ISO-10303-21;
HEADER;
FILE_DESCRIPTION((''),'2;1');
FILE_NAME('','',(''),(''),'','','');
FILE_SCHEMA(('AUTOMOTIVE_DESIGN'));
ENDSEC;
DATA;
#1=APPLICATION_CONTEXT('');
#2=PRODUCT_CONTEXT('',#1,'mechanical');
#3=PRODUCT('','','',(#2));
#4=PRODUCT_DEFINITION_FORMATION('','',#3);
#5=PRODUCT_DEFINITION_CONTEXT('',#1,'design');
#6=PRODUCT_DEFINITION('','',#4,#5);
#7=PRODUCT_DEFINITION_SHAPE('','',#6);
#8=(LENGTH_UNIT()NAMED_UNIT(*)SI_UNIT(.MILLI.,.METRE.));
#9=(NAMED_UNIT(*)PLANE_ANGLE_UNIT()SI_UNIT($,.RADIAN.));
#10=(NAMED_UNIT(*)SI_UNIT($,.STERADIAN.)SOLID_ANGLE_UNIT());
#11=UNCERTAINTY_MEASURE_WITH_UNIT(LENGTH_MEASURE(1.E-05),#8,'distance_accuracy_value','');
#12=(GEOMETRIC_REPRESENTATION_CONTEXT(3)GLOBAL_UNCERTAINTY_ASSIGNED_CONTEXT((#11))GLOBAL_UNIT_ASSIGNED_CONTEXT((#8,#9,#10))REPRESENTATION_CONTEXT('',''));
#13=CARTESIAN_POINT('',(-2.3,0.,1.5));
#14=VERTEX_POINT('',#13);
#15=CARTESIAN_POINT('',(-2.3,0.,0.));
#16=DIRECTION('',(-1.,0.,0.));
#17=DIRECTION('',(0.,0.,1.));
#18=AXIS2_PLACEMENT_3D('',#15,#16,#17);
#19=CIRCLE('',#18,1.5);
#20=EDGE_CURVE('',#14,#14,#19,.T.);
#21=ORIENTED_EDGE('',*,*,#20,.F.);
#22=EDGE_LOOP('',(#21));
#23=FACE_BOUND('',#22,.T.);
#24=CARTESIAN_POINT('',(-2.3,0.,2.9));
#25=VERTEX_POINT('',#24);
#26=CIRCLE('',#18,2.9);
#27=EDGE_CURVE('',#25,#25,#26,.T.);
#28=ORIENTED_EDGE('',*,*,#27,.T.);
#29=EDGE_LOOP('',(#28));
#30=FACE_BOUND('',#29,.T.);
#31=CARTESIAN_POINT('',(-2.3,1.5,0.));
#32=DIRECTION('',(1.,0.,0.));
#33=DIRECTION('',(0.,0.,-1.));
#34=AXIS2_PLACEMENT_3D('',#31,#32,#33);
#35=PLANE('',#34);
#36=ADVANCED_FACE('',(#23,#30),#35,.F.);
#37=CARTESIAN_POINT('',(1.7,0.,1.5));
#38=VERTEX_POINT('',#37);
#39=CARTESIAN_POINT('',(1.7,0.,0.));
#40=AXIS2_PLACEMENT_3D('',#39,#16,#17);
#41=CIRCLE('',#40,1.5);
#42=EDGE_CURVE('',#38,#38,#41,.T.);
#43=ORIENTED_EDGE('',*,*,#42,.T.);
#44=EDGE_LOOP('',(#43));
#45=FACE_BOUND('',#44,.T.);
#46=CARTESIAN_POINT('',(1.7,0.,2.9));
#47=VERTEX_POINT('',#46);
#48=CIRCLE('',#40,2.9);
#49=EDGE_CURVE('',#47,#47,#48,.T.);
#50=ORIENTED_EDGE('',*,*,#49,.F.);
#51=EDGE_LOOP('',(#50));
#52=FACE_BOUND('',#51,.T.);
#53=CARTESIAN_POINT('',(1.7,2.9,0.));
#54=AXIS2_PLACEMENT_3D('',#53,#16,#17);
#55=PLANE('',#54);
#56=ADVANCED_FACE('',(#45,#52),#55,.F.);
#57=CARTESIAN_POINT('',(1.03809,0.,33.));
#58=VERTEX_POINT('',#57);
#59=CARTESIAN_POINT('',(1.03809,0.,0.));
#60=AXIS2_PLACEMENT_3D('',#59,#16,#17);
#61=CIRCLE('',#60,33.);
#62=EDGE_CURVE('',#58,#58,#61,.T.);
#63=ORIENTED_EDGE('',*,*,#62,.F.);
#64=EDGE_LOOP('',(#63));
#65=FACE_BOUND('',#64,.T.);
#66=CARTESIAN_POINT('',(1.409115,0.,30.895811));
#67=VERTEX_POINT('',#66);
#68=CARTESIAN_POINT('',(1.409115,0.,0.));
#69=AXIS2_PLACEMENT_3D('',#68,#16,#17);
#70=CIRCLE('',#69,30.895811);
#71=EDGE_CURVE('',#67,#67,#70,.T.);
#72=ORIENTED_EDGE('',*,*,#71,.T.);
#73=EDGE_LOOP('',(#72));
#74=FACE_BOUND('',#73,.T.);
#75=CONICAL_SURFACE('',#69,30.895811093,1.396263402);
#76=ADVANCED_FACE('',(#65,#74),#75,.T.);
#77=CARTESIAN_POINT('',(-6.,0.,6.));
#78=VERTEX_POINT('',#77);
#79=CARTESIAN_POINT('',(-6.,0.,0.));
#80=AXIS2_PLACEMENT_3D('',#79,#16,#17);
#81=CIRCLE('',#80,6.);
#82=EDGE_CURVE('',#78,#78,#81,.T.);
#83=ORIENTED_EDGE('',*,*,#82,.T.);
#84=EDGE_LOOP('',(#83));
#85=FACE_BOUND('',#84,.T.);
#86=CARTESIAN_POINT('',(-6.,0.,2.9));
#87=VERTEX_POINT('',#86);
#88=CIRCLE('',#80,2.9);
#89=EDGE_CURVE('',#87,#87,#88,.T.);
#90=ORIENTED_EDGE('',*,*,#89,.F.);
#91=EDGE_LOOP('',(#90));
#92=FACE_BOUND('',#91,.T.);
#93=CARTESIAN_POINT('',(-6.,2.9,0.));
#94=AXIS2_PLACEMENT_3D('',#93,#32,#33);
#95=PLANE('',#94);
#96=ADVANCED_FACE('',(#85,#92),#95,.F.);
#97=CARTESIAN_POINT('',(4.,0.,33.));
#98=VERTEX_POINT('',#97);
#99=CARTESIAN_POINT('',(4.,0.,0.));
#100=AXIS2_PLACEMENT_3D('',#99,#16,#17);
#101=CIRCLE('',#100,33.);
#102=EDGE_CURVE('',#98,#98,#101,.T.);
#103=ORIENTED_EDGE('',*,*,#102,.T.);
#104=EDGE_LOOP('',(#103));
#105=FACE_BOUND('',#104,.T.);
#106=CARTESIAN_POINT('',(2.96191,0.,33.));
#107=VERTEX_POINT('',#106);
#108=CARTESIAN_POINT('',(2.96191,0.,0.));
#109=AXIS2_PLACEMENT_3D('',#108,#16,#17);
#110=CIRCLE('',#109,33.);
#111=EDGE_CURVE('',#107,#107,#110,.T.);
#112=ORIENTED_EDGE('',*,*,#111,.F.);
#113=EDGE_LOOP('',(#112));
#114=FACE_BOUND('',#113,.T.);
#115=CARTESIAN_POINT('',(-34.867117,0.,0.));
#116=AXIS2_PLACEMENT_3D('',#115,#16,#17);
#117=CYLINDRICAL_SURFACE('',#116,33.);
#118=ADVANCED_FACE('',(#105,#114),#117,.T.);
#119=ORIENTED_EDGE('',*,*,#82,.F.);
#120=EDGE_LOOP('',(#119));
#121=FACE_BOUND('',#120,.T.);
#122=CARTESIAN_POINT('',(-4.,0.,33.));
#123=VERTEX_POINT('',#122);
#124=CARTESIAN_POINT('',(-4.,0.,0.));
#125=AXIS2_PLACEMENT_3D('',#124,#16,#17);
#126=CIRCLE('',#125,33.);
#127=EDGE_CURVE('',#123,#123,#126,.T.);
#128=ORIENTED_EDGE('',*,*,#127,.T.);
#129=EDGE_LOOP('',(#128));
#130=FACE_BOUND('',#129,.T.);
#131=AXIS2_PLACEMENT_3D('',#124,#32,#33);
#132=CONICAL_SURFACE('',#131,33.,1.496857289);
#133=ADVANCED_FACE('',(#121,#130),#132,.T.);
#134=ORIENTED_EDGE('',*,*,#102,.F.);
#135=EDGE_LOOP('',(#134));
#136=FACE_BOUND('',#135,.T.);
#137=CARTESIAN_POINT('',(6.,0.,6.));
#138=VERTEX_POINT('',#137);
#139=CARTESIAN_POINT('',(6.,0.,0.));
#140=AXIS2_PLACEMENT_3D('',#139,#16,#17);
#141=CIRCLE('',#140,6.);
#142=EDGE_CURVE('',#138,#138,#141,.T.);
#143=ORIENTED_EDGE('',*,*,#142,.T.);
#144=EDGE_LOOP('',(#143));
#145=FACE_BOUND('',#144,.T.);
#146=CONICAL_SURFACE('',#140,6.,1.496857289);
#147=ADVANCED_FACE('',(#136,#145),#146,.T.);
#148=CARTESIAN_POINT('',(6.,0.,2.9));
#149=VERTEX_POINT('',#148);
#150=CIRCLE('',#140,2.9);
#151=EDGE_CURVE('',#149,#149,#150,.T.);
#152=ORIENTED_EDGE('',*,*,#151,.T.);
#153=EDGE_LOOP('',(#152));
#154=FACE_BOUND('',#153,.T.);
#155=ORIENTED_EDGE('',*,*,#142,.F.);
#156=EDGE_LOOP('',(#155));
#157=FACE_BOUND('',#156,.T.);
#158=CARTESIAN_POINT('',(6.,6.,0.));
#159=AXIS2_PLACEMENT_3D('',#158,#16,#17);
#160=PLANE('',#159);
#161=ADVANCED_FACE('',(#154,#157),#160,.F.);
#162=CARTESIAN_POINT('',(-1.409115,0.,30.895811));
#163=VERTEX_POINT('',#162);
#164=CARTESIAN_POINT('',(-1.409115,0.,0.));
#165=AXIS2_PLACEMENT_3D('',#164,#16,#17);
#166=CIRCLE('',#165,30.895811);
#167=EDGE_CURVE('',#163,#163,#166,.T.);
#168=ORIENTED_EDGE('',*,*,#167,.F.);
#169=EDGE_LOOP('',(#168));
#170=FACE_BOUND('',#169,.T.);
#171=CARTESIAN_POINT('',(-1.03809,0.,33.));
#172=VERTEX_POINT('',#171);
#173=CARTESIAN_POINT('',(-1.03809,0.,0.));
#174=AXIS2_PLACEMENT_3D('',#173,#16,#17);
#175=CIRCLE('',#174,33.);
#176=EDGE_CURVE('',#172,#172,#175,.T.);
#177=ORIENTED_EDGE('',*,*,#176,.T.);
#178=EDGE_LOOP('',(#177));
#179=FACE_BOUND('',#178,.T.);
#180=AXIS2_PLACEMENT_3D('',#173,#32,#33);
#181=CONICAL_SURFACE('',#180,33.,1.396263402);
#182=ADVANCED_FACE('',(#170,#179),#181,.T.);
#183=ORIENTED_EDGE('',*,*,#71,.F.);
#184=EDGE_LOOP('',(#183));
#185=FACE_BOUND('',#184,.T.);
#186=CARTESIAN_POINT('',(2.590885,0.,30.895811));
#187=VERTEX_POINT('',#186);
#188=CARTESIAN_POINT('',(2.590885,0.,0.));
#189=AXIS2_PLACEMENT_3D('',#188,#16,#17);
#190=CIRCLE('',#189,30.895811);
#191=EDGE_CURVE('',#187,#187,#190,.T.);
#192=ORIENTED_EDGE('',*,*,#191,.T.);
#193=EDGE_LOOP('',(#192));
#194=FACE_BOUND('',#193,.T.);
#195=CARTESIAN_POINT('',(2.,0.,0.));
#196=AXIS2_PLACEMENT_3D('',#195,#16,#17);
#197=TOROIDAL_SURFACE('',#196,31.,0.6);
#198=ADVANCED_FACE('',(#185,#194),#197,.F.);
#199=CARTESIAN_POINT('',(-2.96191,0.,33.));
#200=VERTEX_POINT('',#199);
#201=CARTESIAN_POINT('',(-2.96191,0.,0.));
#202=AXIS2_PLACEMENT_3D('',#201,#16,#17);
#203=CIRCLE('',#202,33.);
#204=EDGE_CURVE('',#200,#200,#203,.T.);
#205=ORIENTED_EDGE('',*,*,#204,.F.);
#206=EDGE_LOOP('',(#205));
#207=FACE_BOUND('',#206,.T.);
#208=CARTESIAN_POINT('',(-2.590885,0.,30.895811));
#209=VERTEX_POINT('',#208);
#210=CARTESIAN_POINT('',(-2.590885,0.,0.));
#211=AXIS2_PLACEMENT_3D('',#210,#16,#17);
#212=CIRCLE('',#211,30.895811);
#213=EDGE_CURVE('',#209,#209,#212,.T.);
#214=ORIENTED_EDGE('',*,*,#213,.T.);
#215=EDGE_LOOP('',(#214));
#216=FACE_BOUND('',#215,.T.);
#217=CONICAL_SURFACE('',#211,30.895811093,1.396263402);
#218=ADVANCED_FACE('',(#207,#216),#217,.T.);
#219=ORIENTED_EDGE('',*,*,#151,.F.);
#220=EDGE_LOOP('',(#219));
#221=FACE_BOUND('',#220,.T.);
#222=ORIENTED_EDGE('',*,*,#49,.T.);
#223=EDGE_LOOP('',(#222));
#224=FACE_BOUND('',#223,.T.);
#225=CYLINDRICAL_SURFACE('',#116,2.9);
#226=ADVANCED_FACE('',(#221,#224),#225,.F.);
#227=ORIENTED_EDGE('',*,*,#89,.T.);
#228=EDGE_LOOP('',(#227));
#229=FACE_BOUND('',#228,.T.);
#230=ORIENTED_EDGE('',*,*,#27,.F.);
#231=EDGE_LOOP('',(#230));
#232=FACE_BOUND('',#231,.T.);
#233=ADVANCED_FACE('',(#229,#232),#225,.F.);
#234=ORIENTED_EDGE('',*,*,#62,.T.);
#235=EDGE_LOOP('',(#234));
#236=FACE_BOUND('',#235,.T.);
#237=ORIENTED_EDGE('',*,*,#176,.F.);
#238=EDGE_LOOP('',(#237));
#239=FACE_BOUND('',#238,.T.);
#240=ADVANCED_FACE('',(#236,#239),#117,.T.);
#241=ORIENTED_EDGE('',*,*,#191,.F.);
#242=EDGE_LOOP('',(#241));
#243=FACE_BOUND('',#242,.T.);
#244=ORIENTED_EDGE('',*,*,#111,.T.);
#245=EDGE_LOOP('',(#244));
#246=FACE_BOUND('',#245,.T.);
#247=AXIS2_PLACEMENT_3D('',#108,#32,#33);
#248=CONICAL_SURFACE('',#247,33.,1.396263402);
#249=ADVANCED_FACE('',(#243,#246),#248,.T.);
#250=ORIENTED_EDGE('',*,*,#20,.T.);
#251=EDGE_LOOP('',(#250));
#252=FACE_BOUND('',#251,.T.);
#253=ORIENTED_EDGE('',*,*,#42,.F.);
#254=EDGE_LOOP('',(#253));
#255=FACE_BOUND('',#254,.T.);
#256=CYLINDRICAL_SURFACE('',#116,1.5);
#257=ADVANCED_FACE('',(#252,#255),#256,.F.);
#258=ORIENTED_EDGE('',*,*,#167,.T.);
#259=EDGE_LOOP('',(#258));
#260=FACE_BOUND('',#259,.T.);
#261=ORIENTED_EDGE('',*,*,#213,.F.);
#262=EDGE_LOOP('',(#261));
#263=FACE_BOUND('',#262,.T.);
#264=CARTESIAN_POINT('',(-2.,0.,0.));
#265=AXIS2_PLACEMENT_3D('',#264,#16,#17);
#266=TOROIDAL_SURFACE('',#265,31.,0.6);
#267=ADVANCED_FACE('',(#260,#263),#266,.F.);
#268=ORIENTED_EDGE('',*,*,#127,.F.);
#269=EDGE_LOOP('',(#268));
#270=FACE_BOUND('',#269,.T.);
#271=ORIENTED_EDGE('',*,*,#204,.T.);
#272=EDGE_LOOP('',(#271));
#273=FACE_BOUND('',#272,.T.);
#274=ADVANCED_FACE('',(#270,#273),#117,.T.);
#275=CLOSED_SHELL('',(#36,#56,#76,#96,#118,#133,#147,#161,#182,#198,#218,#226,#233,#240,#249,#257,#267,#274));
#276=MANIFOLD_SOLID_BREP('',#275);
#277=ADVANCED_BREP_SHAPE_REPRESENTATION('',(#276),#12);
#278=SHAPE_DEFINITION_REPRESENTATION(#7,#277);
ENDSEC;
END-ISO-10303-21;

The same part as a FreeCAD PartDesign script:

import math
import FreeCAD as App
import Part
import Sketcher
Q = App.Units.Quantity

doc = App.newDocument("Part")
body = doc.addObject("PartDesign::Body", "Body")

# Sketch on XY plane
sketch1 = body.newObject("Sketcher::SketchObject", "Sketch")
sketch1.AttachmentSupport = (doc.getObject("XY_Plane"), [""])
sketch1.MapMode = "FlatFace"
sketch1.addGeometry([
    Part.LineSegment(App.Vector(1.7, 1.5, 0), App.Vector(1.7, 2.9, 0)),  # 0
    Part.LineSegment(App.Vector(1.7, 2.9, 0), App.Vector(6, 2.9, 0)),  # 1
    Part.LineSegment(App.Vector(6, 2.9, 0), App.Vector(6, 6, 0)),  # 2
    Part.LineSegment(App.Vector(6, 6, 0), App.Vector(4, 33, 0)),  # 3
    Part.LineSegment(App.Vector(4, 33, 0), App.Vector(3, 33, 0)),  # 4
    Part.LineSegment(App.Vector(3, 33, 0), App.Vector(2.6, 30.9, 0)),  # 5
    Part.ArcOfCircle(Part.Circle(App.Vector(2, 31, 0), App.Vector(0, 0, 1), 0.6), math.radians(-170), math.radians(-10)),  # 6
    Part.LineSegment(App.Vector(1.4, 30.9, 0), App.Vector(1, 33, 0)),  # 7
    Part.LineSegment(App.Vector(1, 33, 0), App.Vector(-1, 33, 0)),  # 8
    Part.LineSegment(App.Vector(-1, 33, 0), App.Vector(-1.4, 30.9, 0)),  # 9
    Part.ArcOfCircle(Part.Circle(App.Vector(-2, 31, 0), App.Vector(0, 0, 1), 0.6), math.radians(-170), math.radians(-10)),  # 10
    Part.LineSegment(App.Vector(-2.6, 30.9, 0), App.Vector(-3, 33, 0)),  # 11
    Part.LineSegment(App.Vector(-3, 33, 0), App.Vector(-4, 33, 0)),  # 12
    Part.LineSegment(App.Vector(-4, 33, 0), App.Vector(-6, 6, 0)),  # 13
    Part.LineSegment(App.Vector(-6, 6, 0), App.Vector(-6, 2.9, 0)),  # 14
    Part.LineSegment(App.Vector(-6, 2.9, 0), App.Vector(-2.3, 2.9, 0)),  # 15
    Part.LineSegment(App.Vector(-2.3, 2.9, 0), App.Vector(-2.3, 1.5, 0)),  # 16
    Part.LineSegment(App.Vector(-2.3, 1.5, 0), App.Vector(1.7, 1.5, 0)),  # 17
], False)
sketch1.addConstraint([
    Sketcher.Constraint("Coincident", 0, 2, 1, 1),
    Sketcher.Constraint("Coincident", 1, 2, 2, 1),
    Sketcher.Constraint("Coincident", 2, 2, 3, 1),
    Sketcher.Constraint("Coincident", 3, 2, 4, 1),
    Sketcher.Constraint("Coincident", 4, 2, 5, 1),
    Sketcher.Constraint("Tangent", 5, 2, 6, 2),
    Sketcher.Constraint("Tangent", 6, 1, 7, 1),
    Sketcher.Constraint("Coincident", 7, 2, 8, 1),
    Sketcher.Constraint("Coincident", 8, 2, 9, 1),
    Sketcher.Constraint("Tangent", 9, 2, 10, 2),
    Sketcher.Constraint("Tangent", 10, 1, 11, 1),
    Sketcher.Constraint("Coincident", 11, 2, 12, 1),
    Sketcher.Constraint("Coincident", 12, 2, 13, 1),
    Sketcher.Constraint("Coincident", 13, 2, 14, 1),
    Sketcher.Constraint("Coincident", 14, 2, 15, 1),
    Sketcher.Constraint("Coincident", 15, 2, 16, 1),
    Sketcher.Constraint("Coincident", 16, 2, 17, 1),
    Sketcher.Constraint("Coincident", 17, 2, 0, 1),
    Sketcher.Constraint("Vertical", 0),
    Sketcher.Constraint("Horizontal", 1),
    Sketcher.Constraint("Vertical", 2),
    Sketcher.Constraint("Horizontal", 4),
    Sketcher.Constraint("Horizontal", 8),
    Sketcher.Constraint("Horizontal", 12),
    Sketcher.Constraint("Vertical", 14),
    Sketcher.Constraint("Horizontal", 15),
    Sketcher.Constraint("Vertical", 16),
    Sketcher.Constraint("Horizontal", 17),
    Sketcher.Constraint("Equal", 6, 10),
    Sketcher.Constraint("Symmetric", 6, 3, 10, 3, -2),
    Sketcher.Constraint("Symmetric", 4, 2, 11, 2, -2),
    Sketcher.Constraint("Symmetric", 2, 2, 13, 2, -2),
    Sketcher.Constraint("Parallel", 5, 9),
    Sketcher.Constraint("Parallel", 7, 11),
    Sketcher.Constraint("Horizontal", 4, 2, 7, 2),
    Sketcher.Constraint("Horizontal", 1, 2, 14, 2),
    Sketcher.Constraint("Equal", 4, 12),
    Sketcher.Constraint("Radius", 6, Q("0.6 mm")),
    Sketcher.Constraint("DistanceX", 17, 1, 17, 2, Q("4 mm")),
    Sketcher.Constraint("Angle", 5, Q("-100 deg")),
    Sketcher.Constraint("DistanceX", 1, 1, 1, 2, Q("4.3 mm")),
    Sketcher.Constraint("DistanceX", 15, 1, 15, 2, Q("3.7 mm")),
    Sketcher.Constraint("DistanceY", 0, 1, 0, 2, Q("1.4 mm")),
    Sketcher.Constraint("DistanceY", 2, 1, 2, 2, Q("3.1 mm")),
    Sketcher.Constraint("DistanceX", -1, 1, 6, 3, Q("2 mm")),
    Sketcher.Constraint("DistanceY", -1, 1, 6, 3, Q("31 mm")),
    Sketcher.Constraint("DistanceY", -1, 1, 2, 2, Q("6 mm")),
    Sketcher.Constraint("DistanceX", -1, 1, 3, 2, Q("4 mm")),
    Sketcher.Constraint("DistanceY", -1, 1, 3, 2, Q("33 mm")),
])
revolution = body.newObject("PartDesign::Revolution", "Revolution")
revolution.Profile = sketch1
revolution.ReferenceAxis = (sketch1, ["H_Axis"])
revolution.Angle = 360

doc.recompute()
